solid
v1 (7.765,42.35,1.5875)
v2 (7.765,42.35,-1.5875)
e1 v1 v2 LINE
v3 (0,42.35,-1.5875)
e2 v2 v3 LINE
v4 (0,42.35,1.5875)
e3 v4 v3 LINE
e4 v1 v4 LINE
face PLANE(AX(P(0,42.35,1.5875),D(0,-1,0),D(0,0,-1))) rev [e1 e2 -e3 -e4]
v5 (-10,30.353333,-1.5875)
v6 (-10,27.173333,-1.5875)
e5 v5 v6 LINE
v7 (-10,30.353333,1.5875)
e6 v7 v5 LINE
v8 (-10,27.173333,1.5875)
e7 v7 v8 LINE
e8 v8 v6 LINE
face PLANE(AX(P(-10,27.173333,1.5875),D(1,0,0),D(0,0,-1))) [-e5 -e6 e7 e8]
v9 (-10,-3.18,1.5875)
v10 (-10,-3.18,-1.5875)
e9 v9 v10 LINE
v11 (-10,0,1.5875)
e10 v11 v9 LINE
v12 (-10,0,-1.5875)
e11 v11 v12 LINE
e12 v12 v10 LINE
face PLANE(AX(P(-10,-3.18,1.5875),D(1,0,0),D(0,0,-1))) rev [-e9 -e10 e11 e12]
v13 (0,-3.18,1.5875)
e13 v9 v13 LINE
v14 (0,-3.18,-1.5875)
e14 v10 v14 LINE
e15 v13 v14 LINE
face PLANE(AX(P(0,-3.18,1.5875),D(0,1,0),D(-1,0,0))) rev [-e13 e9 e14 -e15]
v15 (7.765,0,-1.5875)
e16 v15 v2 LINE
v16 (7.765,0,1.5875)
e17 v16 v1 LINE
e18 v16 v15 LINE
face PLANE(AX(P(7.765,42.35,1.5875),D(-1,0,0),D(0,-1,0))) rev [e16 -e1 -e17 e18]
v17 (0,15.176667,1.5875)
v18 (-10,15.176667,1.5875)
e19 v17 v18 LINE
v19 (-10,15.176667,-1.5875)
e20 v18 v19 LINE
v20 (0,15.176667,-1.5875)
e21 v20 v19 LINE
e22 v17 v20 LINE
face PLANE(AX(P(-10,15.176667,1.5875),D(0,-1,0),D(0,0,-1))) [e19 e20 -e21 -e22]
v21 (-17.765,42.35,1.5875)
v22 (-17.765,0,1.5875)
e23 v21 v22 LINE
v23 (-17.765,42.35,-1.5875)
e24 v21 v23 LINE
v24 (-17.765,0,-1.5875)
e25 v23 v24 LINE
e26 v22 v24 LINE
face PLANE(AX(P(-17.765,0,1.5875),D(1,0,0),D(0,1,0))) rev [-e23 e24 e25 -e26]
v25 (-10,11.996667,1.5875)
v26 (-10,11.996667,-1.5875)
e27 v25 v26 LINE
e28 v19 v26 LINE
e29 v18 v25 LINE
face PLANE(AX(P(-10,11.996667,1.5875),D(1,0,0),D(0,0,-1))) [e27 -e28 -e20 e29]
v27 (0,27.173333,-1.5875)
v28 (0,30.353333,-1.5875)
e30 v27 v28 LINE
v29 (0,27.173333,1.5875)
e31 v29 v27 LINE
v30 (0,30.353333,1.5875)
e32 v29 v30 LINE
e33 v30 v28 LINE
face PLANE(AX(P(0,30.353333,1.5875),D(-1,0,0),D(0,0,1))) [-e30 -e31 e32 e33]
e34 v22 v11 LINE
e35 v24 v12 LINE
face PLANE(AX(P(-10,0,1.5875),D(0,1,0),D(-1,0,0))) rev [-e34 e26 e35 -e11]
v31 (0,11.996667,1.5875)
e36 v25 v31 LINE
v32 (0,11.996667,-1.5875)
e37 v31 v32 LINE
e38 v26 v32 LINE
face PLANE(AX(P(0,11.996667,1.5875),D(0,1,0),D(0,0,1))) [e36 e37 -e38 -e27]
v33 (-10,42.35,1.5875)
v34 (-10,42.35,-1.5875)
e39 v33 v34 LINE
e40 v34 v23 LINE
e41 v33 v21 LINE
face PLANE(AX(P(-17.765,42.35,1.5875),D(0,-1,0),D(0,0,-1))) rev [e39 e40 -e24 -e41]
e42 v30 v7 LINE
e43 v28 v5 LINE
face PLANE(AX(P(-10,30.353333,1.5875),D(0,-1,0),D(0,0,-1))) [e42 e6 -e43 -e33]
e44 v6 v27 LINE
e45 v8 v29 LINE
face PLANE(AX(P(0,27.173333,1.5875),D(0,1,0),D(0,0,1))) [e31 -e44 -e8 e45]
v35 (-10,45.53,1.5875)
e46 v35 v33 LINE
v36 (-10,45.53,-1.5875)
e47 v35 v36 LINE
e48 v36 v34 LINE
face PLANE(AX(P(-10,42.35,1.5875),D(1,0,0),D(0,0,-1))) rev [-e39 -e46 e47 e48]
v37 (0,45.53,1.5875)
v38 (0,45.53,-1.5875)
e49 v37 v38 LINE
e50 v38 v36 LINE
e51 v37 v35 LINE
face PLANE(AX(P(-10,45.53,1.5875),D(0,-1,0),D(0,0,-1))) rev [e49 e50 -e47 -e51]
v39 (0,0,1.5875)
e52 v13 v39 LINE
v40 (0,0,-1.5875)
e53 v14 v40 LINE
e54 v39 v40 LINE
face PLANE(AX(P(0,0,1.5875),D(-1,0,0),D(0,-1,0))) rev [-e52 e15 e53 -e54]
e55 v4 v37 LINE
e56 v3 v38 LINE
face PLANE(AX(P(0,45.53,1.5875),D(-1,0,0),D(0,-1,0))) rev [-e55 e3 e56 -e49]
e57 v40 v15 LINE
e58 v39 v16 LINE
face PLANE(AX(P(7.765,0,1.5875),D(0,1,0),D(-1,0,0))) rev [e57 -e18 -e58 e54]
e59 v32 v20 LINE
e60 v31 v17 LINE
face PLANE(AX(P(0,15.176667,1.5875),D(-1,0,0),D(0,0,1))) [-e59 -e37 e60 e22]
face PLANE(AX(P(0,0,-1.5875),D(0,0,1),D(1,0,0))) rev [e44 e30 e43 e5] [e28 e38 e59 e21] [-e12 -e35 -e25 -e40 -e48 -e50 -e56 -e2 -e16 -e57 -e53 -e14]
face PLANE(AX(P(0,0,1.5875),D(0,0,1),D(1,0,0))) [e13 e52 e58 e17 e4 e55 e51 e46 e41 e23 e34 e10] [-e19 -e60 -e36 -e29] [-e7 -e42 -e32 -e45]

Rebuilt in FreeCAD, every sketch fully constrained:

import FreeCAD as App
import Part
import Sketcher

doc = App.newDocument("Part")
params = doc.addObject("Spreadsheet::Sheet", "Params")
for row, (alias, value) in enumerate([
    ("sketch1_width", "10 mm"),
    ("sketch1_height", "3.18 mm"),
    ("sketch1_height2", "42.35 mm"),
    ("pad1_length", "3.175 mm"),
], start=1):
    params.set(f"A{row}", alias)
    params.set(f"B{row}", "=" + value)
    params.setAlias(f"B{row}", alias)

body = doc.addObject("PartDesign::Body", "Body")

sketch1 = doc.addObject("Sketcher::SketchObject", "Sketch")
body.addObject(sketch1)
sketch1.AttachmentSupport = (doc.XY_Plane, [""])
sketch1.MapMode = "FlatFace"
sketch1.addGeometry(Part.LineSegment(App.Vector(0, -3.2, 0), App.Vector(0, 0, 0)), False)
sketch1.addGeometry(Part.LineSegment(App.Vector(0, 0, 0), App.Vector(7.8, 0, 0)), False)
sketch1.addGeometry(Part.LineSegment(App.Vector(7.8, 0, 0), App.Vector(7.8, 42.4, 0)), False)
sketch1.addGeometry(Part.LineSegment(App.Vector(7.8, 42.4, 0), App.Vector(0, 42.4, 0)), False)
sketch1.addGeometry(Part.LineSegment(App.Vector(0, 42.4, 0), App.Vector(0, 45.5, 0)), False)
sketch1.addGeometry(Part.LineSegment(App.Vector(0, 45.5, 0), App.Vector(-10, 45.5, 0)), False)
sketch1.addGeometry(Part.LineSegment(App.Vector(-10, 45.5, 0), App.Vector(-10, 42.4, 0)), False)
sketch1.addGeometry(Part.LineSegment(App.Vector(-10, 42.4, 0), App.Vector(-17.8, 42.4, 0)), False)
sketch1.addGeometry(Part.LineSegment(App.Vector(-17.8, 42.4, 0), App.Vector(-17.8, 0, 0)), False)
sketch1.addGeometry(Part.LineSegment(App.Vector(-17.8, 0, 0), App.Vector(-10, 0, 0)), False)
sketch1.addGeometry(Part.LineSegment(App.Vector(-10, 0, 0), App.Vector(-10, -3.2, 0)), False)
sketch1.addGeometry(Part.LineSegment(App.Vector(-10, -3.2, 0), App.Vector(0, -3.2, 0)), False)
sketch1.addGeometry(Part.LineSegment(App.Vector(-10, 12, 0), App.Vector(-10, 15.2, 0)), False)
sketch1.addGeometry(Part.LineSegment(App.Vector(-10, 15.2, 0), App.Vector(0, 15.2, 0)), False)
sketch1.addGeometry(Part.LineSegment(App.Vector(0, 15.2, 0), App.Vector(0, 12, 0)), False)
sketch1.addGeometry(Part.LineSegment(App.Vector(0, 12, 0), App.Vector(-10, 12, 0)), False)
sketch1.addGeometry(Part.LineSegment(App.Vector(-10, 27.2, 0), App.Vector(-10, 30.4, 0)), False)
sketch1.addGeometry(Part.LineSegment(App.Vector(-10, 30.4, 0), App.Vector(0, 30.4, 0)), False)
sketch1.addGeometry(Part.LineSegment(App.Vector(0, 30.4, 0), App.Vector(0, 27.2, 0)), False)
sketch1.addGeometry(Part.LineSegment(App.Vector(0, 27.2, 0), App.Vector(-10, 27.2, 0)), False)
sketch1.addConstraint(Sketcher.Constraint("Coincident", 0, 2, 1, 1))
sketch1.addConstraint(Sketcher.Constraint("Coincident", 1, 2, 2, 1))
sketch1.addConstraint(Sketcher.Constraint("Coincident", 2, 2, 3, 1))
sketch1.addConstraint(Sketcher.Constraint("Coincident", 3, 2, 4, 1))
sketch1.addConstraint(Sketcher.Constraint("Coincident", 4, 2, 5, 1))
sketch1.addConstraint(Sketcher.Constraint("Coincident", 5, 2, 6, 1))
sketch1.addConstraint(Sketcher.Constraint("Coincident", 6, 2, 7, 1))
sketch1.addConstraint(Sketcher.Constraint("Coincident", 7, 2, 8, 1))
sketch1.addConstraint(Sketcher.Constraint("Coincident", 8, 2, 9, 1))
sketch1.addConstraint(Sketcher.Constraint("Coincident", 9, 2, 10, 1))
sketch1.addConstraint(Sketcher.Constraint("Coincident", 10, 2, 11, 1))
sketch1.addConstraint(Sketcher.Constraint("Coincident", 11, 2, 0, 1))
sketch1.addConstraint(Sketcher.Constraint("Coincident", 12, 2, 13, 1))
sketch1.addConstraint(Sketcher.Constraint("Coincident", 13, 2, 14, 1))
sketch1.addConstraint(Sketcher.Constraint("Coincident", 14, 2, 15, 1))
sketch1.addConstraint(Sketcher.Constraint("Coincident", 15, 2, 12, 1))
sketch1.addConstraint(Sketcher.Constraint("Coincident", 16, 2, 17, 1))
sketch1.addConstraint(Sketcher.Constraint("Coincident", 17, 2, 18, 1))
sketch1.addConstraint(Sketcher.Constraint("Coincident", 18, 2, 19, 1))
sketch1.addConstraint(Sketcher.Constraint("Coincident", 19, 2, 16, 1))
sketch1.addConstraint(Sketcher.Constraint("Vertical", 0))
sketch1.addConstraint(Sketcher.Constraint("Horizontal", 1))
sketch1.addConstraint(Sketcher.Constraint("Vertical", 2))
sketch1.addConstraint(Sketcher.Constraint("Horizontal", 3))
sketch1.addConstraint(Sketcher.Constraint("Vertical", 4))
sketch1.addConstraint(Sketcher.Constraint("Horizontal", 5))
sketch1.addConstraint(Sketcher.Constraint("Vertical", 6))
sketch1.addConstraint(Sketcher.Constraint("Horizontal", 7))
sketch1.addConstraint(Sketcher.Constraint("Vertical", 8))
sketch1.addConstraint(Sketcher.Constraint("Horizontal", 9))
sketch1.addConstraint(Sketcher.Constraint("Vertical", 10))
sketch1.addConstraint(Sketcher.Constraint("Horizontal", 11))
sketch1.addConstraint(Sketcher.Constraint("Vertical", 12))
sketch1.addConstraint(Sketcher.Constraint("Horizontal", 13))
sketch1.addConstraint(Sketcher.Constraint("Vertical", 14))
sketch1.addConstraint(Sketcher.Constraint("Horizontal", 15))
sketch1.addConstraint(Sketcher.Constraint("Vertical", 16))
sketch1.addConstraint(Sketcher.Constraint("Horizontal", 17))
sketch1.addConstraint(Sketcher.Constraint("Vertical", 18))
sketch1.addConstraint(Sketcher.Constraint("Horizontal", 19))
sketch1.addConstraint(Sketcher.Constraint("Coincident", 0, 2, -1, 1))
sketch1.addConstraint(Sketcher.Constraint("PointOnObject", 3, 2, -2))
sketch1.addConstraint(Sketcher.Constraint("PointOnObject", 8, 2, -1))
sketch1.addConstraint(Sketcher.Constraint("PointOnObject", 13, 2, -2))
sketch1.addConstraint(Sketcher.Constraint("PointOnObject", 17, 2, -2))
sketch1.addConstraint(Sketcher.Constraint("Horizontal", 3, 2, 6, 2))
sketch1.addConstraint(Sketcher.Constraint("Vertical", 6, 2, 9, 2))
sketch1.addConstraint(Sketcher.Constraint("Vertical", 10, 2, 12, 2))
sketch1.addConstraint(Sketcher.Constraint("Vertical", 15, 2, 16, 2))
sketch1.addConstraint(Sketcher.Constraint("Equal", 3, 7))
sketch1.addConstraint(Sketcher.Constraint("Equal", 0, 4))
sketch1.addConstraint(Sketcher.Constraint("Equal", 10, 12))
sketch1.addConstraint(Sketcher.Constraint("Equal", 14, 16))
sketch1.addConstraint(Sketcher.Constraint("DistanceX", 5, 2, 5, 1, 10.0))
sketch1.addConstraint(Sketcher.Constraint("DistanceY", 0, 1, 0, 2, 3.18))
sketch1.addConstraint(Sketcher.Constraint("DistanceY", 2, 1, 2, 2, 42.35))
sketch1.addConstraint(Sketcher.Constraint("DistanceX", 1, 1, 1, 2, 7.765))
sketch1.addConstraint(Sketcher.Constraint("DistanceY", -1, 1, 12, 2, 15.176667))
sketch1.addConstraint(Sketcher.Constraint("DistanceY", -1, 1, 16, 2, 30.353333))
sketch1.setExpression("Constraints[53]", "Params.sketch1_width")
sketch1.setExpression("Constraints[54]", "Params.sketch1_height")
sketch1.setExpression("Constraints[55]", "Params.sketch1_height2")
pad1 = doc.addObject("PartDesign::Pad", "Pad")
body.addObject(pad1)
pad1.Profile = sketch1
pad1.setExpression("Length", "Params.pad1_length")
pad1.Midplane = True

doc.recompute()
